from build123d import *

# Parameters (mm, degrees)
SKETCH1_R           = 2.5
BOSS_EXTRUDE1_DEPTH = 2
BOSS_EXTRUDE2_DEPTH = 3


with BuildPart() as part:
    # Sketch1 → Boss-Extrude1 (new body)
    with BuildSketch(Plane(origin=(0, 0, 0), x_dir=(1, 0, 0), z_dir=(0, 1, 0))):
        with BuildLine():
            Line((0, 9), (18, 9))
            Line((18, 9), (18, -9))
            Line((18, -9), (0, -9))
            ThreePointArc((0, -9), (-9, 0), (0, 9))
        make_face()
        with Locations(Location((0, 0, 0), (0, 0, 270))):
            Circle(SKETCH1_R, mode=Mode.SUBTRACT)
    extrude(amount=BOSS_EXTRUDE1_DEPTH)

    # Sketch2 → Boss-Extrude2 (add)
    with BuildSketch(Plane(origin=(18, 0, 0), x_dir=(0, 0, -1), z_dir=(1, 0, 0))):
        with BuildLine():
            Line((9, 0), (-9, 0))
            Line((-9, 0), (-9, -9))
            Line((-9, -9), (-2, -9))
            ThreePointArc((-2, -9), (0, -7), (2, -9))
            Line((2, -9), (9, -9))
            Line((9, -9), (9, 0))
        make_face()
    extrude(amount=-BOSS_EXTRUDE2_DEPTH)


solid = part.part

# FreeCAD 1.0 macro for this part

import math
import FreeCAD as App
import Part
import Sketcher
from FreeCAD import Vector
Q = App.Units.Quantity

doc = App.newDocument("Part")
body = doc.addObject("PartDesign::Body", "Body")

# Sketch on XZ plane
sketch1 = body.newObject("Sketcher::SketchObject", "Sketch")
sketch1.AttachmentSupport = (doc.getObject("XZ_Plane"), [""])
sketch1.MapMode = "FlatFace"
sketch1.addGeometry(Part.LineSegment(Vector(18, -9, 0), Vector(0, -9, 0)), False)
sketch1.addGeometry(Part.ArcOfCircle(Part.Circle(Vector(0, 0, 0), Vector(0, 0, 1), 9), math.radians(90), math.radians(270)), False)
sketch1.addGeometry(Part.LineSegment(Vector(0, 9, 0), Vector(18, 9, 0)), False)
sketch1.addGeometry(Part.LineSegment(Vector(18, 9, 0), Vector(18, -9, 0)), False)
sketch1.addGeometry(Part.Circle(Vector(0, 0, 0), Vector(0, 0, 1), 2.5), False)
sketch1.addConstraint(Sketcher.Constraint("Tangent", 0, 2, 1, 2))
sketch1.addConstraint(Sketcher.Constraint("Tangent", 1, 1, 2, 1))
sketch1.addConstraint(Sketcher.Constraint("Coincident", 2, 2, 3, 1))
sketch1.addConstraint(Sketcher.Constraint("Coincident", 3, 2, 0, 1))
sketch1.addConstraint(Sketcher.Constraint("Horizontal", 0))
sketch1.addConstraint(Sketcher.Constraint("Horizontal", 2))
sketch1.addConstraint(Sketcher.Constraint("Vertical", 3))
sketch1.addConstraint(Sketcher.Constraint("Coincident", 1, 3, -1, 1))
sketch1.addConstraint(Sketcher.Constraint("Coincident", 4, 3, -1, 1))
sketch1.addConstraint(Sketcher.Constraint("Equal", 2, 3))
sketch1.addConstraint(Sketcher.Constraint("Diameter", 4, Q("5 mm")))
sketch1.addConstraint(Sketcher.Constraint("Radius", 1, Q("9 mm")))
pad1 = body.newObject("PartDesign::Pad", "Pad")
pad1.Profile = sketch1
pad1.Length = 2
pad1.Reversed = True

# Sketch on YZ plane
sketch2 = body.newObject("Sketcher::SketchObject", "Sketch001")
sketch2.AttachmentSupport = (doc.getObject("YZ_Plane"), [""])
sketch2.MapMode = "FlatFace"
sketch2.AttachmentOffset = App.Placement(Vector(0, 0, 18), App.Rotation())
sketch2.addGeometry(Part.LineSegment(Vector(0, -9, 0), Vector(0, 9, 0)), False)
sketch2.addGeometry(Part.LineSegment(Vector(0, 9, 0), Vector(-9, 9, 0)), False)
sketch2.addGeometry(Part.LineSegment(Vector(-9, 9, 0), Vector(-9, 2, 0)), False)
sketch2.addGeometry(Part.ArcOfCircle(Part.Circle(Vector(-9, 0, 0), Vector(0, 0, 1), 2), math.radians(-90), math.radians(90)), False)
sketch2.addGeometry(Part.LineSegment(Vector(-9, -2, 0), Vector(-9, -9, 0)), False)
sketch2.addGeometry(Part.LineSegment(Vector(-9, -9, 0), Vector(0, -9, 0)), False)
sketch2.addConstraint(Sketcher.Constraint("Coincident", 0, 2, 1, 1))
sketch2.addConstraint(Sketcher.Constraint("Coincident", 1, 2, 2, 1))
sketch2.addConstraint(Sketcher.Constraint("Coincident", 2, 2, 3, 2))
sketch2.addConstraint(Sketcher.Constraint("Coincident", 3, 1, 4, 1))
sketch2.addConstraint(Sketcher.Constraint("Coincident", 4, 2, 5, 1))
sketch2.addConstraint(Sketcher.Constraint("Coincident", 5, 2, 0, 1))
sketch2.addConstraint(Sketcher.Constraint("Vertical", 0))
sketch2.addConstraint(Sketcher.Constraint("Horizontal", 1))
sketch2.addConstraint(Sketcher.Constraint("Vertical", 2))
sketch2.addConstraint(Sketcher.Constraint("Vertical", 4))
sketch2.addConstraint(Sketcher.Constraint("Horizontal", 5))
sketch2.addConstraint(Sketcher.Constraint("Symmetric", 0, 2, 5, 2, -1, 1))
sketch2.addConstraint(Sketcher.Constraint("Symmetric", 2, 2, 3, 1, -1))
sketch2.addConstraint(Sketcher.Constraint("Vertical", 3, 3, 1, 2))
sketch2.addConstraint(Sketcher.Constraint("Radius", 3, Q("2 mm")))
sketch2.addConstraint(Sketcher.Constraint("DistanceX", 1, 2, 1, 1, Q("9 mm")))
sketch2.addConstraint(Sketcher.Constraint("DistanceY", 0, 1, 0, 2, Q("18 mm")))
pad2 = body.newObject("PartDesign::Pad", "Pad001")
pad2.Profile = sketch2
pad2.Length = 3
pad2.Reversed = True

doc.recompute()
